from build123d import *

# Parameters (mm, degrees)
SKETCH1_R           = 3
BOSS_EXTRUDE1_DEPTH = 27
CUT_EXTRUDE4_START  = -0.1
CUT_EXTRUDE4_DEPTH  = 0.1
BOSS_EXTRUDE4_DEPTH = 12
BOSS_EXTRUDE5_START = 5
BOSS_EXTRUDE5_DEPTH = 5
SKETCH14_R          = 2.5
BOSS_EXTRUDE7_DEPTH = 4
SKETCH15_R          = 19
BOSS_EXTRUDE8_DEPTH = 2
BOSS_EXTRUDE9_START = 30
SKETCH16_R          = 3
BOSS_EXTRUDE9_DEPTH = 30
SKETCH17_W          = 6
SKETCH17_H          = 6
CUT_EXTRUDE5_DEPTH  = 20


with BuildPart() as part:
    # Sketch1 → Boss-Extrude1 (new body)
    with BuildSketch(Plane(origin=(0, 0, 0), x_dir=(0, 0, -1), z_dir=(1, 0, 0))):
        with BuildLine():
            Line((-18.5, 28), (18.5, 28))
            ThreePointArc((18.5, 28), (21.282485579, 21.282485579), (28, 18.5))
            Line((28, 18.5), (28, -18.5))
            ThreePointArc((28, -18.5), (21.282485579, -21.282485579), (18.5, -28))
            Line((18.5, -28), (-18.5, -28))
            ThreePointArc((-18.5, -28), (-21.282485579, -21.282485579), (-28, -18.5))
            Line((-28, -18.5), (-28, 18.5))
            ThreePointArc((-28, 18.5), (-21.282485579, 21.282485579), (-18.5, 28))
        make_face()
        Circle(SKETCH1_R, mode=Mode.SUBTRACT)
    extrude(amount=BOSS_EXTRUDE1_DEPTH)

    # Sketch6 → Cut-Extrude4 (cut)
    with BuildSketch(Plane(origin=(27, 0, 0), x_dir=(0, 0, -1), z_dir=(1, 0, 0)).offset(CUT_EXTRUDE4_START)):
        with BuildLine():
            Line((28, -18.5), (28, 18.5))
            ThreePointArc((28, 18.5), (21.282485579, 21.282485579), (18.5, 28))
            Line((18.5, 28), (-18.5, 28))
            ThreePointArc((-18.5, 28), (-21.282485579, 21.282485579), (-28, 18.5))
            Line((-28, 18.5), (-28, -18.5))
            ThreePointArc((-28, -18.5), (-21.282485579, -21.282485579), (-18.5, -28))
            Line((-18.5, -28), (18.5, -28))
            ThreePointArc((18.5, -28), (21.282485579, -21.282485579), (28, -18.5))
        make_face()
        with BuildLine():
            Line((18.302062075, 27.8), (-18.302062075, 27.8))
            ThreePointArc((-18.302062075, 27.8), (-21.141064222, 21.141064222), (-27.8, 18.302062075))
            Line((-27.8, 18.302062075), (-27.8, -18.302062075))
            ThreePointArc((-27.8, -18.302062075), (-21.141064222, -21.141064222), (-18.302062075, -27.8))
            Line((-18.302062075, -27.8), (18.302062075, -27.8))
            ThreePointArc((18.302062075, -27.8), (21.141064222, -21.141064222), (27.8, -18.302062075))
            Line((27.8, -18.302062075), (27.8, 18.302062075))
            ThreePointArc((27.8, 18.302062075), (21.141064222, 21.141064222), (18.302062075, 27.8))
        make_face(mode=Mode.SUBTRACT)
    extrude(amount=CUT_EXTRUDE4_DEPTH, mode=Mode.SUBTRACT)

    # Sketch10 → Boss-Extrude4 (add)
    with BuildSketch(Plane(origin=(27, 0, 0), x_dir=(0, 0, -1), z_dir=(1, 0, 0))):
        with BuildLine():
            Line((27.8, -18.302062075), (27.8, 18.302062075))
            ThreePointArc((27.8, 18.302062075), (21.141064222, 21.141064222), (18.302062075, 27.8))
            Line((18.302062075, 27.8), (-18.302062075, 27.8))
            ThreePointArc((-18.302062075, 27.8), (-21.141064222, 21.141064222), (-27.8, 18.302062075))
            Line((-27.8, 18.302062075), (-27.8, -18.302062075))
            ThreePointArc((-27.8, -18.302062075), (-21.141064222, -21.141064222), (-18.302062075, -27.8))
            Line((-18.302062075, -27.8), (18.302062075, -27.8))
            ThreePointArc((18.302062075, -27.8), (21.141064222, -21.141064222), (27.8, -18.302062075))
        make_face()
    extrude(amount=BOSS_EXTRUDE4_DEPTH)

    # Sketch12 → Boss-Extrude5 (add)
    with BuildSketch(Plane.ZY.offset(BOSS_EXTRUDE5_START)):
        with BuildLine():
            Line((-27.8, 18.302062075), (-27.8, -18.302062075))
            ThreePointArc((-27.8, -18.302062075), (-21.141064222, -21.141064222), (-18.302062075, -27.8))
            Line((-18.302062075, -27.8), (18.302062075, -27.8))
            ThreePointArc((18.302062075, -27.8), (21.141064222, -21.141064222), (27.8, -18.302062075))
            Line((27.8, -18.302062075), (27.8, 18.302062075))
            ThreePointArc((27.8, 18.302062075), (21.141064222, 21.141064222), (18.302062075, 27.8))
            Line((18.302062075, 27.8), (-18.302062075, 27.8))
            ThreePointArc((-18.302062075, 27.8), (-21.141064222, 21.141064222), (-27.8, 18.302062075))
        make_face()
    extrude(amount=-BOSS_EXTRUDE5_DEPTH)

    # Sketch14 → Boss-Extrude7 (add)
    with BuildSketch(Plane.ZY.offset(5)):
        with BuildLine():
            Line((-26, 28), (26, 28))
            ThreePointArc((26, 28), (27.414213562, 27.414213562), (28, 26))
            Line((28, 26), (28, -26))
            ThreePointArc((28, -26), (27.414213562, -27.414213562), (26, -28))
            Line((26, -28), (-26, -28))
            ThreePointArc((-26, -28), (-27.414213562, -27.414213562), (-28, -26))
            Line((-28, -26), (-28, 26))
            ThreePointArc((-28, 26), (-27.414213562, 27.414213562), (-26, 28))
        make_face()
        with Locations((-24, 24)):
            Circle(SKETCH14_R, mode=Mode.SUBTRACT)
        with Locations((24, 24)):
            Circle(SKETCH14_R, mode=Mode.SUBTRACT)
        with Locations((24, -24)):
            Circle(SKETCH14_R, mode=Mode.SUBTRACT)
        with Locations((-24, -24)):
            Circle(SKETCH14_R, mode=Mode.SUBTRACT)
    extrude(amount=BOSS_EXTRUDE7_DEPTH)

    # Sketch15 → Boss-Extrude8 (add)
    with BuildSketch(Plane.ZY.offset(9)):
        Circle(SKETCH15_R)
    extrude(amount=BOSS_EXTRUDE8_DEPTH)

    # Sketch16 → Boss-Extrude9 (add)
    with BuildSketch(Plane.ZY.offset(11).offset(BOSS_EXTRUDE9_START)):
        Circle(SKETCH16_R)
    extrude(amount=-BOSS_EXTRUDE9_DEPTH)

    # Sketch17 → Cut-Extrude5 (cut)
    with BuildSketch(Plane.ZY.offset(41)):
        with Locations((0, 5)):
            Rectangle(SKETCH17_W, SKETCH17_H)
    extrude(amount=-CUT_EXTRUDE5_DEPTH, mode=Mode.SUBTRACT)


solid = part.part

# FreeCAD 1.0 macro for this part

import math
import FreeCAD as App
import Part
import Sketcher
from FreeCAD import Vector
Q = App.Units.Quantity


def add_polygon(sketch, points):
    """Adds a closed chain of lines whose ends are joined by coincident constraints."""
    first, n = sketch.GeometryCount, len(points)
    for a, b in zip(points, points[1:] + points[:1]):
        sketch.addGeometry(Part.LineSegment(App.Vector(*a, 0), App.Vector(*b, 0)), False)
    for i in range(n):
        sketch.addConstraint(Sketcher.Constraint("Coincident", first + i, 2, first + (i + 1) % n, 1))

doc = App.newDocument("Part")
body = doc.addObject("PartDesign::Body", "Body")

sketch1 = body.newObject("Sketcher::SketchObject", "Sketch")
sketch1.AttachmentSupport = (doc.getObject("YZ_Plane"), [""])
sketch1.MapMode = "FlatFace"
sketch1.addGeometry([
    Part.LineSegment(Vector(28, -18.5, 0), Vector(28, 18.5, 0)),
    Part.ArcOfCircle(Part.Circle(Vector(28, 28, 0), Vector(0, 0, 1), 9.5), math.radians(-180), math.radians(-90)),
    Part.LineSegment(Vector(18.5, 28, 0), Vector(-18.5, 28, 0)),
    Part.ArcOfCircle(Part.Circle(Vector(-28, 28, 0), Vector(0, 0, 1), 9.5), math.radians(-90), math.radians(0)),
    Part.LineSegment(Vector(-28, 18.5, 0), Vector(-28, -18.5, 0)),
    Part.ArcOfCircle(Part.Circle(Vector(-28, -28, 0), Vector(0, 0, 1), 9.5), math.radians(0), math.radians(90)),
    Part.LineSegment(Vector(-18.5, -28, 0), Vector(18.5, -28, 0)),
    Part.ArcOfCircle(Part.Circle(Vector(28, -28, 0), Vector(0, 0, 1), 9.5), math.radians(90), math.radians(180)),
    Part.Circle(Vector(0, 0, 0), Vector(0, 0, 1), 3),
], False)
sketch1.addConstraint([
    Sketcher.Constraint("Coincident", 0, 2, 1, 2),
    Sketcher.Constraint("Coincident", 1, 1, 2, 1),
    Sketcher.Constraint("Coincident", 2, 2, 3, 2),
    Sketcher.Constraint("Coincident", 3, 1, 4, 1),
    Sketcher.Constraint("Coincident", 4, 2, 5, 2),
    Sketcher.Constraint("Coincident", 5, 1, 6, 1),
    Sketcher.Constraint("Coincident", 6, 2, 7, 2),
    Sketcher.Constraint("Coincident", 7, 1, 0, 1),
    Sketcher.Constraint("Vertical", 0),
    Sketcher.Constraint("Horizontal", 2),
    Sketcher.Constraint("Vertical", 4),
    Sketcher.Constraint("Horizontal", 6),
    Sketcher.Constraint("Coincident", 8, 3, -1, 1),
    Sketcher.Constraint("Equal", 1, 3),
    Sketcher.Constraint("Equal", 3, 5),
    Sketcher.Constraint("Equal", 5, 7),
    Sketcher.Constraint("Symmetric", 1, 3, 5, 3, -1, 1),
    Sketcher.Constraint("Symmetric", 3, 3, 7, 3, -1, 1),
    Sketcher.Constraint("Symmetric", 1, 3, 3, 3, -2),
    Sketcher.Constraint("Horizontal", 3, 3, 1, 1),
    Sketcher.Constraint("Horizontal", 7, 3, 5, 1),
    Sketcher.Constraint("Vertical", 7, 3, 0, 2),
    Sketcher.Constraint("Vertical", 5, 3, 3, 1),
    Sketcher.Constraint("Equal", 6, 0),
    Sketcher.Constraint("Diameter", 8, Q("6 mm")),
    Sketcher.Constraint("Radius", 1, Q("9.5 mm")),
    Sketcher.Constraint("DistanceX", 2, 2, 2, 1, Q("37 mm")),
])
pad1 = body.newObject("PartDesign::Pad", "Pad")
pad1.Profile = sketch1
pad1.Length = 27

sketch2 = body.newObject("Sketcher::SketchObject", "Sketch001")
sketch2.AttachmentSupport = (doc.getObject("YZ_Plane"), [""])
sketch2.MapMode = "FlatFace"
sketch2.AttachmentOffset = App.Placement(Vector(0, 0, 26.9), App.Rotation())
sketch2.addGeometry([
    Part.LineSegment(Vector(-18, -28, 0), Vector(18, -28, 0)),
    Part.ArcOfCircle(Part.Circle(Vector(28, -28, 0), Vector(0, 0, 1), 10), math.radians(90), math.radians(180)),
    Part.LineSegment(Vector(28, -18, 0), Vector(28, 18, 0)),
    Part.ArcOfCircle(Part.Circle(Vector(28, 28, 0), Vector(0, 0, 1), 10), math.radians(-180), math.radians(-90)),
    Part.LineSegment(Vector(18, 28, 0), Vector(-18, 28, 0)),
    Part.ArcOfCircle(Part.Circle(Vector(-28, 28, 0), Vector(0, 0, 1), 10), math.radians(-90), math.radians(0)),
    Part.LineSegment(Vector(-28, 18, 0), Vector(-28, -18, 0)),
    Part.ArcOfCircle(Part.Circle(Vector(-28, -28, 0), Vector(0, 0, 1), 10), math.radians(0), math.radians(90)),
    Part.LineSegment(Vector(28, 18, 0), Vector(28, -18, 0)),
    Part.ArcOfCircle(Part.Circle(Vector(28, -28, 0), Vector(0, 0, 1), 10), math.radians(91), math.radians(179)),
    Part.LineSegment(Vector(18, -28, 0), Vector(-18, -28, 0)),
    Part.ArcOfCircle(Part.Circle(Vector(-28, -28, 0), Vector(0, 0, 1), 10), math.radians(1), math.radians(89)),
    Part.LineSegment(Vector(-28, -18, 0), Vector(-28, 18, 0)),
    Part.ArcOfCircle(Part.Circle(Vector(-28, 28, 0), Vector(0, 0, 1), 10), math.radians(-89), math.radians(-1)),
    Part.LineSegment(Vector(-18, 28, 0), Vector(18, 28, 0)),
    Part.ArcOfCircle(Part.Circle(Vector(28, 28, 0), Vector(0, 0, 1), 10), math.radians(-179), math.radians(-91)),
], False)
sketch2.addConstraint([
    Sketcher.Constraint("Coincident", 0, 2, 1, 2),
    Sketcher.Constraint("Coincident", 1, 1, 2, 1),
    Sketcher.Constraint("Coincident", 2, 2, 3, 2),
    Sketcher.Constraint("Coincident", 3, 1, 4, 1),
    Sketcher.Constraint("Coincident", 4, 2, 5, 2),
    Sketcher.Constraint("Coincident", 5, 1, 6, 1),
    Sketcher.Constraint("Coincident", 6, 2, 7, 2),
    Sketcher.Constraint("Coincident", 7, 1, 0, 1),
    Sketcher.Constraint("Coincident", 8, 2, 9, 1),
    Sketcher.Constraint("Coincident", 9, 2, 10, 1),
    Sketcher.Constraint("Coincident", 10, 2, 11, 1),
    Sketcher.Constraint("Coincident", 11, 2, 12, 1),
    Sketcher.Constraint("Coincident", 12, 2, 13, 1),
    Sketcher.Constraint("Coincident", 13, 2, 14, 1),
    Sketcher.Constraint("Coincident", 14, 2, 15, 1),
    Sketcher.Constraint("Coincident", 15, 2, 8, 1),
    Sketcher.Constraint("Horizontal", 0),
    Sketcher.Constraint("Vertical", 2),
    Sketcher.Constraint("Horizontal", 4),
    Sketcher.Constraint("Vertical", 6),
    Sketcher.Constraint("Vertical", 8),
    Sketcher.Constraint("Horizontal", 10),
    Sketcher.Constraint("Vertical", 12),
    Sketcher.Constraint("Horizontal", 14),
    Sketcher.Constraint("Coincident", 9, 3, 1, 3),
    Sketcher.Constraint("Coincident", 11, 3, 7, 3),
    Sketcher.Constraint("Coincident", 13, 3, 5, 3),
    Sketcher.Constraint("Coincident", 15, 3, 3, 3),
    Sketcher.Constraint("Equal", 1, 3),
    Sketcher.Constraint("Equal", 3, 5),
    Sketcher.Constraint("Equal", 5, 7),
    Sketcher.Constraint("Equal", 9, 11),
    Sketcher.Constraint("Equal", 11, 13),
    Sketcher.Constraint("Equal", 13, 15),
    Sketcher.Constraint("Symmetric", 1, 3, 5, 3, -1, 1),
    Sketcher.Constraint("Symmetric", 3, 3, 7, 3, -1, 1),
    Sketcher.Constraint("Symmetric", 3, 3, 5, 3, -2),
    Sketcher.Constraint("Horizontal", 11, 3, 0, 2),
    Sketcher.Constraint("Horizontal", 15, 3, 3, 1),
    Sketcher.Constraint("Horizontal", 8, 2, 11, 2),
    Sketcher.Constraint("Vertical", 15, 3, 1, 1),
    Sketcher.Constraint("Vertical", 13, 3, 5, 1),
    Sketcher.Constraint("Vertical", 10, 2, 13, 2),
    Sketcher.Constraint("Equal", 4, 2),
    Sketcher.Constraint("Equal", 14, 8),
    Sketcher.Constraint("Radius", 1, Q("9.5 mm")),
    Sketcher.Constraint("Radius", 9, Q("9.7 mm")),
    Sketcher.Constraint("DistanceX", 0, 1, 0, 2, Q("37 mm")),
    Sketcher.Constraint("DistanceX", -1, 1, 8, 2, Q("27.8 mm")),
])
pocket1 = body.newObject("PartDesign::Pocket", "Pocket")
pocket1.Profile = sketch2
pocket1.Length = 0.1
pocket1.Reversed = True

sketch3 = body.newObject("Sketcher::SketchObject", "Sketch002")
sketch3.AttachmentSupport = (doc.getObject("YZ_Plane"), [""])
sketch3.MapMode = "FlatFace"
sketch3.AttachmentOffset = App.Placement(Vector(0, 0, 27), App.Rotation())
sketch3.addGeometry([
    Part.LineSegment(Vector(-18, -28, 0), Vector(18, -28, 0)),
    Part.ArcOfCircle(Part.Circle(Vector(28, -28, 0), Vector(0, 0, 1), 10), math.radians(91), math.radians(179)),
    Part.LineSegment(Vector(28, -18, 0), Vector(28, 18, 0)),
    Part.ArcOfCircle(Part.Circle(Vector(28, 28, 0), Vector(0, 0, 1), 10), math.radians(-179), math.radians(-91)),
    Part.LineSegment(Vector(18, 28, 0), Vector(-18, 28, 0)),
    Part.ArcOfCircle(Part.Circle(Vector(-28, 28, 0), Vector(0, 0, 1), 10), math.radians(-89), math.radians(-1)),
    Part.LineSegment(Vector(-28, 18, 0), Vector(-28, -18, 0)),
    Part.ArcOfCircle(Part.Circle(Vector(-28, -28, 0), Vector(0, 0, 1), 10), math.radians(1), math.radians(89)),
], False)
sketch3.addConstraint([
    Sketcher.Constraint("Coincident", 0, 2, 1, 2),
    Sketcher.Constraint("Coincident", 1, 1, 2, 1),
    Sketcher.Constraint("Coincident", 2, 2, 3, 2),
    Sketcher.Constraint("Coincident", 3, 1, 4, 1),
    Sketcher.Constraint("Coincident", 4, 2, 5, 2),
    Sketcher.Constraint("Coincident", 5, 1, 6, 1),
    Sketcher.Constraint("Coincident", 6, 2, 7, 2),
    Sketcher.Constraint("Coincident", 7, 1, 0, 1),
    Sketcher.Constraint("Horizontal", 0),
    Sketcher.Constraint("Vertical", 2),
    Sketcher.Constraint("Horizontal", 4),
    Sketcher.Constraint("Vertical", 6),
    Sketcher.Constraint("Equal", 1, 3),
    Sketcher.Constraint("Equal", 3, 5),
    Sketcher.Constraint("Equal", 5, 7),
    Sketcher.Constraint("Symmetric", 1, 3, 5, 3, -1, 1),
    Sketcher.Constraint("Symmetric", 3, 3, 7, 3, -1, 1),
    Sketcher.Constraint("Symmetric", 3, 3, 5, 3, -2),
    Sketcher.Constraint("Horizontal", 2, 2, 5, 1),
    Sketcher.Constraint("Vertical", 0, 2, 3, 1),
    Sketcher.Constraint("Equal", 4, 2),
    Sketcher.Constraint("Radius", 1, Q("9.7 mm")),
    Sketcher.Constraint("DistanceX", -1, 1, 1, 3, Q("28 mm")),
    Sketcher.Constraint("DistanceY", 1, 3, -1, 1, Q("28 mm")),
    Sketcher.Constraint("DistanceY", 0, 2, -1, 1, Q("27.8 mm")),
])
pad2 = body.newObject("PartDesign::Pad", "Pad001")
pad2.Profile = sketch3
pad2.Length = 12

sketch4 = body.newObject("Sketcher::SketchObject", "Sketch003")
sketch4.AttachmentSupport = (doc.getObject("YZ_Plane"), [""])
sketch4.MapMode = "FlatFace"
sketch4.AttachmentOffset = App.Placement(Vector(0, 0, -5), App.Rotation())
sketch4.addGeometry([
    Part.LineSegment(Vector(18, -28, 0), Vector(-18, -28, 0)),
    Part.ArcOfCircle(Part.Circle(Vector(-28, -28, 0), Vector(0, 0, 1), 10), math.radians(1), math.radians(89)),
    Part.LineSegment(Vector(-28, -18, 0), Vector(-28, 18, 0)),
    Part.ArcOfCircle(Part.Circle(Vector(-28, 28, 0), Vector(0, 0, 1), 10), math.radians(-89), math.radians(-1)),
    Part.LineSegment(Vector(-18, 28, 0), Vector(18, 28, 0)),
    Part.ArcOfCircle(Part.Circle(Vector(28, 28, 0), Vector(0, 0, 1), 10), math.radians(-179), math.radians(-91)),
    Part.LineSegment(Vector(28, 18, 0), Vector(28, -18, 0)),
    Part.ArcOfCircle(Part.Circle(Vector(28, -28, 0), Vector(0, 0, 1), 10), math.radians(91), math.radians(179)),
], False)
sketch4.addConstraint([
    Sketcher.Constraint("Coincident", 0, 2, 1, 1),
    Sketcher.Constraint("Coincident", 1, 2, 2, 1),
    Sketcher.Constraint("Coincident", 2, 2, 3, 1),
    Sketcher.Constraint("Coincident", 3, 2, 4, 1),
    Sketcher.Constraint("Coincident", 4, 2, 5, 1),
    Sketcher.Constraint("Coincident", 5, 2, 6, 1),
    Sketcher.Constraint("Coincident", 6, 2, 7, 1),
    Sketcher.Constraint("Coincident", 7, 2, 0, 1),
    Sketcher.Constraint("Horizontal", 0),
    Sketcher.Constraint("Vertical", 2),
    Sketcher.Constraint("Horizontal", 4),
    Sketcher.Constraint("Vertical", 6),
    Sketcher.Constraint("Equal", 1, 3),
    Sketcher.Constraint("Equal", 3, 5),
    Sketcher.Constraint("Equal", 5, 7),
    Sketcher.Constraint("Symmetric", 1, 3, 5, 3, -1, 1),
    Sketcher.Constraint("Symmetric", 3, 3, 7, 3, -1, 1),
    Sketcher.Constraint("Symmetric", 3, 3, 5, 3, -2),
    Sketcher.Constraint("Horizontal", 2, 2, 5, 2),
    Sketcher.Constraint("Vertical", 0, 2, 3, 2),
    Sketcher.Constraint("Equal", 4, 2),
    Sketcher.Constraint("Radius", 1, Q("9.7 mm")),
    Sketcher.Constraint("DistanceX", 1, 3, -1, 1, Q("28 mm")),
    Sketcher.Constraint("DistanceY", 1, 3, -1, 1, Q("28 mm")),
    Sketcher.Constraint("DistanceY", 0, 2, -1, 1, Q("27.8 mm")),
])
pad3 = body.newObject("PartDesign::Pad", "Pad002")
pad3.Profile = sketch4
pad3.Length = 5

sketch5 = body.newObject("Sketcher::SketchObject", "Sketch004")
sketch5.AttachmentSupport = (doc.getObject("YZ_Plane"), [""])
sketch5.MapMode = "FlatFace"
sketch5.AttachmentOffset = App.Placement(Vector(0, 0, -5), App.Rotation())
sketch5.addGeometry([
    Part.LineSegment(Vector(28, 26, 0), Vector(28, -26, 0)),
    Part.ArcOfCircle(Part.Circle(Vector(26, -26, 0), Vector(0, 0, 1), 2), math.radians(-90), math.radians(0)),
    Part.LineSegment(Vector(26, -28, 0), Vector(-26, -28, 0)),
    Part.ArcOfCircle(Part.Circle(Vector(-26, -26, 0), Vector(0, 0, 1), 2), math.radians(-180), math.radians(-90)),
    Part.LineSegment(Vector(-28, -26, 0), Vector(-28, 26, 0)),
    Part.ArcOfCircle(Part.Circle(Vector(-26, 26, 0), Vector(0, 0, 1), 2), math.radians(90), math.radians(180)),
    Part.LineSegment(Vector(-26, 28, 0), Vector(26, 28, 0)),
    Part.ArcOfCircle(Part.Circle(Vector(26, 26, 0), Vector(0, 0, 1), 2), math.radians(0), math.radians(90)),
    Part.Circle(Vector(-24, 24, 0), Vector(0, 0, 1), 2.5),
    Part.Circle(Vector(-24, -24, 0), Vector(0, 0, 1), 2.5),
    Part.Circle(Vector(24, 24, 0), Vector(0, 0, 1), 2.5),
    Part.Circle(Vector(24, -24, 0), Vector(0, 0, 1), 2.5),
], False)
sketch5.addConstraint([
    Sketcher.Constraint("Tangent", 0, 2, 1, 2),
    Sketcher.Constraint("Tangent", 1, 1, 2, 1),
    Sketcher.Constraint("Tangent", 2, 2, 3, 2),
    Sketcher.Constraint("Tangent", 3, 1, 4, 1),
    Sketcher.Constraint("Tangent", 4, 2, 5, 2),
    Sketcher.Constraint("Tangent", 5, 1, 6, 1),
    Sketcher.Constraint("Tangent", 6, 2, 7, 2),
    Sketcher.Constraint("Tangent", 7, 1, 0, 1),
    Sketcher.Constraint("Vertical", 0),
    Sketcher.Constraint("Horizontal", 2),
    Sketcher.Constraint("Vertical", 4),
    Sketcher.Constraint("Horizontal", 6),
    Sketcher.Constraint("Equal", 1, 3),
    Sketcher.Constraint("Equal", 3, 5),
    Sketcher.Constraint("Equal", 5, 7),
    Sketcher.Constraint("Equal", 8, 9),
    Sketcher.Constraint("Equal", 9, 10),
    Sketcher.Constraint("Equal", 10, 11),
    Sketcher.Constraint("Symmetric", 1, 3, 5, 3, -1, 1),
    Sketcher.Constraint("Symmetric", 9, 3, 10, 3, -1, 1),
    Sketcher.Constraint("Symmetric", 8, 3, 11, 3, -1, 1),
    Sketcher.Constraint("Symmetric", 8, 3, 10, 3, -2),
    Sketcher.Constraint("Equal", 6, 0),
    Sketcher.Constraint("Diameter", 8, Q("5 mm")),
    Sketcher.Constraint("Radius", 1, Q("2 mm")),
    Sketcher.Constraint("DistanceX", 2, 2, 2, 1, Q("52 mm")),
    Sketcher.Constraint("DistanceX", 8, 3, -1, 1, Q("24 mm")),
    Sketcher.Constraint("DistanceY", -1, 1, 8, 3, Q("24 mm")),
])
pad4 = body.newObject("PartDesign::Pad", "Pad003")
pad4.Profile = sketch5
pad4.Length = 4
pad4.Reversed = True

sketch6 = body.newObject("Sketcher::SketchObject", "Sketch005")
sketch6.AttachmentSupport = (doc.getObject("YZ_Plane"), [""])
sketch6.MapMode = "FlatFace"
sketch6.AttachmentOffset = App.Placement(Vector(0, 0, -9), App.Rotation())
sketch6.addGeometry(Part.Circle(Vector(0, 0, 0), Vector(0, 0, 1), 19), False)
sketch6.addConstraint([
    Sketcher.Constraint("Coincident", 0, 3, -1, 1),
    Sketcher.Constraint("Diameter", 0, Q("38 mm")),
])
pad5 = body.newObject("PartDesign::Pad", "Pad004")
pad5.Profile = sketch6
pad5.Length = 2
pad5.Reversed = True

sketch7 = body.newObject("Sketcher::SketchObject", "Sketch006")
sketch7.AttachmentSupport = (doc.getObject("YZ_Plane"), [""])
sketch7.MapMode = "FlatFace"
sketch7.AttachmentOffset = App.Placement(Vector(0, 0, -41), App.Rotation())
sketch7.addGeometry(Part.Circle(Vector(0, 0, 0), Vector(0, 0, 1), 3), False)
sketch7.addConstraint([
    Sketcher.Constraint("Coincident", 0, 3, -1, 1),
    Sketcher.Constraint("Diameter", 0, Q("6 mm")),
])
pad6 = body.newObject("PartDesign::Pad", "Pad005")
pad6.Profile = sketch7
pad6.Length = 30

sketch8 = body.newObject("Sketcher::SketchObject", "Sketch007")
sketch8.AttachmentSupport = (doc.getObject("YZ_Plane"), [""])
sketch8.MapMode = "FlatFace"
sketch8.AttachmentOffset = App.Placement(Vector(0, 0, -41), App.Rotation())
add_polygon(sketch8, [(8, -3), (2, -3), (2, 3), (8, 3)])
sketch8.addConstraint([
    Sketcher.Constraint("Horizontal", 0),
    Sketcher.Constraint("Vertical", 1),
    Sketcher.Constraint("Horizontal", 2),
    Sketcher.Constraint("Vertical", 3),
    Sketcher.Constraint("Equal", 2, 1),
    Sketcher.Constraint("DistanceX", 0, 2, 0, 1, Q("6 mm")),
    Sketcher.Constraint("DistanceX", -1, 1, 0, 2, Q("2 mm")),
    Sketcher.Constraint("DistanceY", 0, 2, -1, 1, Q("3 mm")),
])
pocket2 = body.newObject("PartDesign::Pocket", "Pocket001")
pocket2.Profile = sketch8
pocket2.Length = 20
pocket2.Reversed = True

doc.recompute()
